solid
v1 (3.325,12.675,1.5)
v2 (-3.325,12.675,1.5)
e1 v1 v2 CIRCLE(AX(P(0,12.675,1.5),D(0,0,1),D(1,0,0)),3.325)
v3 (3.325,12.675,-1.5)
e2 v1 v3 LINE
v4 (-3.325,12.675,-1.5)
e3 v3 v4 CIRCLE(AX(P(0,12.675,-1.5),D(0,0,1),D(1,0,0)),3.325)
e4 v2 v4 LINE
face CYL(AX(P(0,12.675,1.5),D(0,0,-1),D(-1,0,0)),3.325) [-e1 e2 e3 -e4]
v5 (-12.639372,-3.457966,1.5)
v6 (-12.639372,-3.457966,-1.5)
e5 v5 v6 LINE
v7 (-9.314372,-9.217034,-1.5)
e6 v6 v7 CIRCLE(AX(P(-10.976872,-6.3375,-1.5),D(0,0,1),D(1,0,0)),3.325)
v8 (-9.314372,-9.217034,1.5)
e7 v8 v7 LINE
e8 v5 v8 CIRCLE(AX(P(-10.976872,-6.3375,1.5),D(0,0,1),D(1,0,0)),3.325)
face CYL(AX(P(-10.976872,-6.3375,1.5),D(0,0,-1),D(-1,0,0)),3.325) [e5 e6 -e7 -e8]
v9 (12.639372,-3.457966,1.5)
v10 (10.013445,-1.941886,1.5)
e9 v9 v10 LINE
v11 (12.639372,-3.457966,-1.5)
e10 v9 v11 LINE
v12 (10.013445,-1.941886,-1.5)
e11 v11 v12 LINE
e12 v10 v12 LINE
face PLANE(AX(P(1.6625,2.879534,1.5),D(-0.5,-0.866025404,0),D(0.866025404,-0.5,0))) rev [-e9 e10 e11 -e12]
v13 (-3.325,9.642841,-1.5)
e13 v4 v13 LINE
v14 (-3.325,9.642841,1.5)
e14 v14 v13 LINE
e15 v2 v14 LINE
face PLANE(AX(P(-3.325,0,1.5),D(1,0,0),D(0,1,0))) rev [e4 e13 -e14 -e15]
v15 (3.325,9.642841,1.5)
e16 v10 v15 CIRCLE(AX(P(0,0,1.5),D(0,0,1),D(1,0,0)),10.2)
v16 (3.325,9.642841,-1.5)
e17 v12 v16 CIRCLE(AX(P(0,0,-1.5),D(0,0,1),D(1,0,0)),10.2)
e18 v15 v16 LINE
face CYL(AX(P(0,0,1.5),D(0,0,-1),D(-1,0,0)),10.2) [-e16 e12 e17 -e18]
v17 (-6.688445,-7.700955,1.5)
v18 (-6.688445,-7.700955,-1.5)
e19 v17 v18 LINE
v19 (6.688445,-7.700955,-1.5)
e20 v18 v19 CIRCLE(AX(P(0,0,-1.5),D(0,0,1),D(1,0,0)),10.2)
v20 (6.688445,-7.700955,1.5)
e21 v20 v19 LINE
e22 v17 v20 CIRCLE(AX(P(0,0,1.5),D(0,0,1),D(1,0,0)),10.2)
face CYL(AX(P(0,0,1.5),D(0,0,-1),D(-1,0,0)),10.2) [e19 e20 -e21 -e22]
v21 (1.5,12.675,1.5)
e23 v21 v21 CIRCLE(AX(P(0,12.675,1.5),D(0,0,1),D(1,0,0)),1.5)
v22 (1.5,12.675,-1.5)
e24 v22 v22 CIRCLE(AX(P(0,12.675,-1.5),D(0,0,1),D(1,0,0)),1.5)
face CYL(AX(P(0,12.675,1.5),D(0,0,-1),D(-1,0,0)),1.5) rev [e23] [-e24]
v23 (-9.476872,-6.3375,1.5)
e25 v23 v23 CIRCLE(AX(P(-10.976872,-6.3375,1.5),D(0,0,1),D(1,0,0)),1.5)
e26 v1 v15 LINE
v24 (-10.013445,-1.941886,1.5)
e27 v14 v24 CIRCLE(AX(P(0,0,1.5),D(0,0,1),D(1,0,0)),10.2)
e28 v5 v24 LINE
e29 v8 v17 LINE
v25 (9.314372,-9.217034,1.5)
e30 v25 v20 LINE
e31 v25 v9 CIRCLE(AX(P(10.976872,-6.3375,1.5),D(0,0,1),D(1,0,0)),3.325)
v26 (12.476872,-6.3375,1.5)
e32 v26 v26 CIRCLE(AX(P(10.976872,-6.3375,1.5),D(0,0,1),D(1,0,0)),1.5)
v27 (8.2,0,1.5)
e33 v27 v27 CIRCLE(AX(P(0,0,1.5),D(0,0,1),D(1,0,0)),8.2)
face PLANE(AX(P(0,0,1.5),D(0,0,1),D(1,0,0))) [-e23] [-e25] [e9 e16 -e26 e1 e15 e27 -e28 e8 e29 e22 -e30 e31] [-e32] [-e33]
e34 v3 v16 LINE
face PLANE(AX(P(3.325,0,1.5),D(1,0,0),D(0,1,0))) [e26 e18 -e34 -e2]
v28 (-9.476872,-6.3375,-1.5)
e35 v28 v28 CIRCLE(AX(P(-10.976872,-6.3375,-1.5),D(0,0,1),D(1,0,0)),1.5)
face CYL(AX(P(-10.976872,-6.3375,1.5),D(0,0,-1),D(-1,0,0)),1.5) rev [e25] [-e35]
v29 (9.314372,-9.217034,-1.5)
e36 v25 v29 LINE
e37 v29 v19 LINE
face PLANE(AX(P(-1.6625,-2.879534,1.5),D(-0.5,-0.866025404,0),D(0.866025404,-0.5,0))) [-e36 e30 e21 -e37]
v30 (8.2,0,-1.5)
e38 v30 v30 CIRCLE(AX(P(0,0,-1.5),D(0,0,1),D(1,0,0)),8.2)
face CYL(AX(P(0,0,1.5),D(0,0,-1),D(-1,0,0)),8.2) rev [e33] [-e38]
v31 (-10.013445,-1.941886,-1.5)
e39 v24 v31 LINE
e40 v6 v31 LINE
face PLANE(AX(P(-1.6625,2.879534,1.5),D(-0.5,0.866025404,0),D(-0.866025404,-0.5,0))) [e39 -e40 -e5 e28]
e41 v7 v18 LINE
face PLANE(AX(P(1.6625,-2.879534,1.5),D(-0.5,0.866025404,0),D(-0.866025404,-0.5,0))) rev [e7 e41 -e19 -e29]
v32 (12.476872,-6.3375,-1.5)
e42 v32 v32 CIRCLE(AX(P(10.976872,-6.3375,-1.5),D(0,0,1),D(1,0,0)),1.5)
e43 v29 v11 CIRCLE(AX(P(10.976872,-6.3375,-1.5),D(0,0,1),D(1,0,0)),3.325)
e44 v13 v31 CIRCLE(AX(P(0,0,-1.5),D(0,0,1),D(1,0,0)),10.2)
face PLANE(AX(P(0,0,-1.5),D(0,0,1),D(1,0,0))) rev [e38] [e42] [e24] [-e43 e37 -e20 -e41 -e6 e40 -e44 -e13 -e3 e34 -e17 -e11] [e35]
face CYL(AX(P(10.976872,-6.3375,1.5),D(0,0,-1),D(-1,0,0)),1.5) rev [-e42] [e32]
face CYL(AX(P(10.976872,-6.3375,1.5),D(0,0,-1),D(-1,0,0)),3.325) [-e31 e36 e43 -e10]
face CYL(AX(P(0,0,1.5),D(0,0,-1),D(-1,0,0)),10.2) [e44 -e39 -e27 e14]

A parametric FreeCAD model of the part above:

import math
import FreeCAD as App
import Part
import Sketcher
Q = App.Units.Quantity

doc = App.newDocument("Part")
body = doc.addObject("PartDesign::Body", "Body")

sketch1 = body.newObject("Sketcher::SketchObject", "Sketch")
sketch1.AttachmentSupport = (doc.getObject("XY_Plane"), [""])
sketch1.MapMode = "FlatFace"
sketch1.addGeometry([
    Part.ArcOfCircle(Part.Circle(App.Vector(0, 0, 0), App.Vector(0, 0, 1), 10.2), math.radians(109), math.radians(191)),
    Part.LineSegment(App.Vector(-10, -1.9, 0), App.Vector(-12.6, -3.5, 0)),
    Part.ArcOfCircle(Part.Circle(App.Vector(-11, -6.3, 0), App.Vector(0, 0, 1), 3.3), math.radians(120), math.radians(300)),
    Part.LineSegment(App.Vector(-9.3, -9.2, 0), App.Vector(-6.7, -7.7, 0)),
    Part.ArcOfCircle(Part.Circle(App.Vector(0, 0, 0), App.Vector(0, 0, 1), 10.2), math.radians(-131), math.radians(-49)),
    Part.LineSegment(App.Vector(6.7, -7.7, 0), App.Vector(9.3, -9.2, 0)),
    Part.ArcOfCircle(Part.Circle(App.Vector(11, -6.3, 0), App.Vector(0, 0, 1), 3.3), math.radians(-120), math.radians(60)),
    Part.LineSegment(App.Vector(12.6, -3.5, 0), App.Vector(10, -1.9, 0)),
    Part.ArcOfCircle(Part.Circle(App.Vector(0, 0, 0), App.Vector(0, 0, 1), 10.2), math.radians(-10.98), math.radians(0)),
    Part.ArcOfCircle(Part.Circle(App.Vector(0, 0, 0), App.Vector(0, 0, 1), 10.2), math.radians(0), math.radians(71)),
    Part.LineSegment(App.Vector(3.3, 9.6, 0), App.Vector(3.3, 12.7, 0)),
    Part.ArcOfCircle(Part.Circle(App.Vector(0, 12.7, 0), App.Vector(0, 0, 1), 3.3), math.radians(0), math.radians(180)),
    Part.LineSegment(App.Vector(-3.3, 12.7, 0), App.Vector(-3.3, 9.6, 0)),
    Part.ArcOfCircle(Part.Circle(App.Vector(0, 0, 0), App.Vector(0, 0, 1), 8.2), math.radians(114), math.radians(186)),
    Part.ArcOfCircle(Part.Circle(App.Vector(0, 0, 0), App.Vector(0, 0, 1), 8.2), math.radians(66), math.radians(114)),
    Part.ArcOfCircle(Part.Circle(App.Vector(0, 0, 0), App.Vector(0, 0, 1), 8.2), math.radians(0), math.radians(66)),
    Part.ArcOfCircle(Part.Circle(App.Vector(0, 0, 0), App.Vector(0, 0, 1), 8.2), math.radians(-6.08), math.radians(0)),
    Part.ArcOfCircle(Part.Circle(App.Vector(0, 0, 0), App.Vector(0, 0, 1), 8.2), math.radians(-54), math.radians(-6)),
    Part.ArcOfCircle(Part.Circle(App.Vector(0, 0, 0), App.Vector(0, 0, 1), 8.2), math.radians(-126), math.radians(-54)),
    Part.ArcOfCircle(Part.Circle(App.Vector(0, 0, 0), App.Vector(0, 0, 1), 8.2), math.radians(-174), math.radians(-126)),
    Part.Circle(App.Vector(0, 12.7, 0), App.Vector(0, 0, 1), 1.5),
    Part.Circle(App.Vector(-11, -6.3, 0), App.Vector(0, 0, 1), 1.5),
    Part.Circle(App.Vector(11, -6.3, 0), App.Vector(0, 0, 1), 1.5),
], False)
sketch1.addConstraint([
    Sketcher.Constraint("Coincident", 0, 2, 1, 1),
    Sketcher.Constraint("Tangent", 1, 2, 2, 1),
    Sketcher.Constraint("Tangent", 2, 2, 3, 1),
    Sketcher.Constraint("Coincident", 3, 2, 4, 1),
    Sketcher.Constraint("Coincident", 4, 2, 5, 1),
    Sketcher.Constraint("Tangent", 5, 2, 6, 1),
    Sketcher.Constraint("Tangent", 6, 2, 7, 1),
    Sketcher.Constraint("Coincident", 7, 2, 8, 1),
    Sketcher.Constraint("Tangent", 8, 2, 9, 1),
    Sketcher.Constraint("Coincident", 9, 2, 10, 1),
    Sketcher.Constraint("Tangent", 10, 2, 11, 1),
    Sketcher.Constraint("Tangent", 11, 2, 12, 1),
    Sketcher.Constraint("Coincident", 12, 2, 0, 1),
    Sketcher.Constraint("Tangent", 13, 1, 14, 2),
    Sketcher.Constraint("Tangent", 14, 1, 15, 2),
    Sketcher.Constraint("Tangent", 15, 1, 16, 2),
    Sketcher.Constraint("Tangent", 16, 1, 17, 2),
    Sketcher.Constraint("Tangent", 17, 1, 18, 2),
    Sketcher.Constraint("Tangent", 18, 1, 19, 2),
    Sketcher.Constraint("Tangent", 19, 1, 13, 2),
    Sketcher.Constraint("Vertical", 10),
    Sketcher.Constraint("Vertical", 12),
    Sketcher.Constraint("Coincident", 0, 3, -1, 1),
    Sketcher.Constraint("Coincident", 4, 3, -1, 1),
    Sketcher.Constraint("Coincident", 8, 3, -1, 1),
    Sketcher.Constraint("Coincident", 13, 3, -1, 1),
    Sketcher.Constraint("Coincident", 15, 3, -1, 1),
    Sketcher.Constraint("Coincident", 17, 3, -1, 1),
    Sketcher.Constraint("Coincident", 20, 3, 11, 3),
    Sketcher.Constraint("Coincident", 21, 3, 2, 3),
    Sketcher.Constraint("Coincident", 22, 3, 6, 3),
    Sketcher.Constraint("Equal", 0, 4),
    Sketcher.Constraint("Equal", 2, 6),
    Sketcher.Constraint("Equal", 4, 8),
    Sketcher.Constraint("Equal", 8, 9),
    Sketcher.Constraint("Equal", 6, 11),
    Sketcher.Constraint("Equal", 20, 21),
    Sketcher.Constraint("Equal", 21, 22),
    Sketcher.Constraint("Symmetric", 2, 3, 6, 3, -2),
    Sketcher.Constraint("PointOnObject", 11, 3, -2),
    Sketcher.Constraint("PointOnObject", 8, 2, -1),
    Sketcher.Constraint("PointOnObject", 15, 1, -1),
    Sketcher.Constraint("Parallel", 1, 3),
    Sketcher.Constraint("Parallel", 5, 7),
    Sketcher.Constraint("Horizontal", 3, 2, 4, 2),
    Sketcher.Constraint("Horizontal", 13, 1, 14, 1),
    Sketcher.Constraint("Horizontal", 17, 1, 18, 1),
    Sketcher.Constraint("Horizontal", 16, 1, 19, 1),
    Sketcher.Constraint("Vertical", 12, 2, 13, 1),
    Sketcher.Constraint("Equal", 1, 3),
    Sketcher.Constraint("Diameter", 20, Q("3 mm")),
    Sketcher.Constraint("Radius", 0, Q("10.2 mm")),
    Sketcher.Constraint("Radius", 13, Q("8.2 mm")),
    Sketcher.Constraint("Angle", 1, Q("-150 deg")),
    Sketcher.Constraint("Radius", 2, Q("3.325 mm")),
    Sketcher.Constraint("DistanceY", -1, 1, 11, 3, Q("12.675 mm")),
    Sketcher.Constraint("DistanceX", 17, 1, 16, 1, Q("3.325 mm")),
    Sketcher.Constraint("DistanceY", 2, 3, -1, 1, Q("6.3375 mm")),
    Sketcher.Constraint("DistanceX", -1, 1, 16, 1, Q("8.153901 mm")),
])
pad1 = body.newObject("PartDesign::Pad", "Pad")
pad1.Profile = sketch1
pad1.Length = 3
pad1.Midplane = True

doc.recompute()
